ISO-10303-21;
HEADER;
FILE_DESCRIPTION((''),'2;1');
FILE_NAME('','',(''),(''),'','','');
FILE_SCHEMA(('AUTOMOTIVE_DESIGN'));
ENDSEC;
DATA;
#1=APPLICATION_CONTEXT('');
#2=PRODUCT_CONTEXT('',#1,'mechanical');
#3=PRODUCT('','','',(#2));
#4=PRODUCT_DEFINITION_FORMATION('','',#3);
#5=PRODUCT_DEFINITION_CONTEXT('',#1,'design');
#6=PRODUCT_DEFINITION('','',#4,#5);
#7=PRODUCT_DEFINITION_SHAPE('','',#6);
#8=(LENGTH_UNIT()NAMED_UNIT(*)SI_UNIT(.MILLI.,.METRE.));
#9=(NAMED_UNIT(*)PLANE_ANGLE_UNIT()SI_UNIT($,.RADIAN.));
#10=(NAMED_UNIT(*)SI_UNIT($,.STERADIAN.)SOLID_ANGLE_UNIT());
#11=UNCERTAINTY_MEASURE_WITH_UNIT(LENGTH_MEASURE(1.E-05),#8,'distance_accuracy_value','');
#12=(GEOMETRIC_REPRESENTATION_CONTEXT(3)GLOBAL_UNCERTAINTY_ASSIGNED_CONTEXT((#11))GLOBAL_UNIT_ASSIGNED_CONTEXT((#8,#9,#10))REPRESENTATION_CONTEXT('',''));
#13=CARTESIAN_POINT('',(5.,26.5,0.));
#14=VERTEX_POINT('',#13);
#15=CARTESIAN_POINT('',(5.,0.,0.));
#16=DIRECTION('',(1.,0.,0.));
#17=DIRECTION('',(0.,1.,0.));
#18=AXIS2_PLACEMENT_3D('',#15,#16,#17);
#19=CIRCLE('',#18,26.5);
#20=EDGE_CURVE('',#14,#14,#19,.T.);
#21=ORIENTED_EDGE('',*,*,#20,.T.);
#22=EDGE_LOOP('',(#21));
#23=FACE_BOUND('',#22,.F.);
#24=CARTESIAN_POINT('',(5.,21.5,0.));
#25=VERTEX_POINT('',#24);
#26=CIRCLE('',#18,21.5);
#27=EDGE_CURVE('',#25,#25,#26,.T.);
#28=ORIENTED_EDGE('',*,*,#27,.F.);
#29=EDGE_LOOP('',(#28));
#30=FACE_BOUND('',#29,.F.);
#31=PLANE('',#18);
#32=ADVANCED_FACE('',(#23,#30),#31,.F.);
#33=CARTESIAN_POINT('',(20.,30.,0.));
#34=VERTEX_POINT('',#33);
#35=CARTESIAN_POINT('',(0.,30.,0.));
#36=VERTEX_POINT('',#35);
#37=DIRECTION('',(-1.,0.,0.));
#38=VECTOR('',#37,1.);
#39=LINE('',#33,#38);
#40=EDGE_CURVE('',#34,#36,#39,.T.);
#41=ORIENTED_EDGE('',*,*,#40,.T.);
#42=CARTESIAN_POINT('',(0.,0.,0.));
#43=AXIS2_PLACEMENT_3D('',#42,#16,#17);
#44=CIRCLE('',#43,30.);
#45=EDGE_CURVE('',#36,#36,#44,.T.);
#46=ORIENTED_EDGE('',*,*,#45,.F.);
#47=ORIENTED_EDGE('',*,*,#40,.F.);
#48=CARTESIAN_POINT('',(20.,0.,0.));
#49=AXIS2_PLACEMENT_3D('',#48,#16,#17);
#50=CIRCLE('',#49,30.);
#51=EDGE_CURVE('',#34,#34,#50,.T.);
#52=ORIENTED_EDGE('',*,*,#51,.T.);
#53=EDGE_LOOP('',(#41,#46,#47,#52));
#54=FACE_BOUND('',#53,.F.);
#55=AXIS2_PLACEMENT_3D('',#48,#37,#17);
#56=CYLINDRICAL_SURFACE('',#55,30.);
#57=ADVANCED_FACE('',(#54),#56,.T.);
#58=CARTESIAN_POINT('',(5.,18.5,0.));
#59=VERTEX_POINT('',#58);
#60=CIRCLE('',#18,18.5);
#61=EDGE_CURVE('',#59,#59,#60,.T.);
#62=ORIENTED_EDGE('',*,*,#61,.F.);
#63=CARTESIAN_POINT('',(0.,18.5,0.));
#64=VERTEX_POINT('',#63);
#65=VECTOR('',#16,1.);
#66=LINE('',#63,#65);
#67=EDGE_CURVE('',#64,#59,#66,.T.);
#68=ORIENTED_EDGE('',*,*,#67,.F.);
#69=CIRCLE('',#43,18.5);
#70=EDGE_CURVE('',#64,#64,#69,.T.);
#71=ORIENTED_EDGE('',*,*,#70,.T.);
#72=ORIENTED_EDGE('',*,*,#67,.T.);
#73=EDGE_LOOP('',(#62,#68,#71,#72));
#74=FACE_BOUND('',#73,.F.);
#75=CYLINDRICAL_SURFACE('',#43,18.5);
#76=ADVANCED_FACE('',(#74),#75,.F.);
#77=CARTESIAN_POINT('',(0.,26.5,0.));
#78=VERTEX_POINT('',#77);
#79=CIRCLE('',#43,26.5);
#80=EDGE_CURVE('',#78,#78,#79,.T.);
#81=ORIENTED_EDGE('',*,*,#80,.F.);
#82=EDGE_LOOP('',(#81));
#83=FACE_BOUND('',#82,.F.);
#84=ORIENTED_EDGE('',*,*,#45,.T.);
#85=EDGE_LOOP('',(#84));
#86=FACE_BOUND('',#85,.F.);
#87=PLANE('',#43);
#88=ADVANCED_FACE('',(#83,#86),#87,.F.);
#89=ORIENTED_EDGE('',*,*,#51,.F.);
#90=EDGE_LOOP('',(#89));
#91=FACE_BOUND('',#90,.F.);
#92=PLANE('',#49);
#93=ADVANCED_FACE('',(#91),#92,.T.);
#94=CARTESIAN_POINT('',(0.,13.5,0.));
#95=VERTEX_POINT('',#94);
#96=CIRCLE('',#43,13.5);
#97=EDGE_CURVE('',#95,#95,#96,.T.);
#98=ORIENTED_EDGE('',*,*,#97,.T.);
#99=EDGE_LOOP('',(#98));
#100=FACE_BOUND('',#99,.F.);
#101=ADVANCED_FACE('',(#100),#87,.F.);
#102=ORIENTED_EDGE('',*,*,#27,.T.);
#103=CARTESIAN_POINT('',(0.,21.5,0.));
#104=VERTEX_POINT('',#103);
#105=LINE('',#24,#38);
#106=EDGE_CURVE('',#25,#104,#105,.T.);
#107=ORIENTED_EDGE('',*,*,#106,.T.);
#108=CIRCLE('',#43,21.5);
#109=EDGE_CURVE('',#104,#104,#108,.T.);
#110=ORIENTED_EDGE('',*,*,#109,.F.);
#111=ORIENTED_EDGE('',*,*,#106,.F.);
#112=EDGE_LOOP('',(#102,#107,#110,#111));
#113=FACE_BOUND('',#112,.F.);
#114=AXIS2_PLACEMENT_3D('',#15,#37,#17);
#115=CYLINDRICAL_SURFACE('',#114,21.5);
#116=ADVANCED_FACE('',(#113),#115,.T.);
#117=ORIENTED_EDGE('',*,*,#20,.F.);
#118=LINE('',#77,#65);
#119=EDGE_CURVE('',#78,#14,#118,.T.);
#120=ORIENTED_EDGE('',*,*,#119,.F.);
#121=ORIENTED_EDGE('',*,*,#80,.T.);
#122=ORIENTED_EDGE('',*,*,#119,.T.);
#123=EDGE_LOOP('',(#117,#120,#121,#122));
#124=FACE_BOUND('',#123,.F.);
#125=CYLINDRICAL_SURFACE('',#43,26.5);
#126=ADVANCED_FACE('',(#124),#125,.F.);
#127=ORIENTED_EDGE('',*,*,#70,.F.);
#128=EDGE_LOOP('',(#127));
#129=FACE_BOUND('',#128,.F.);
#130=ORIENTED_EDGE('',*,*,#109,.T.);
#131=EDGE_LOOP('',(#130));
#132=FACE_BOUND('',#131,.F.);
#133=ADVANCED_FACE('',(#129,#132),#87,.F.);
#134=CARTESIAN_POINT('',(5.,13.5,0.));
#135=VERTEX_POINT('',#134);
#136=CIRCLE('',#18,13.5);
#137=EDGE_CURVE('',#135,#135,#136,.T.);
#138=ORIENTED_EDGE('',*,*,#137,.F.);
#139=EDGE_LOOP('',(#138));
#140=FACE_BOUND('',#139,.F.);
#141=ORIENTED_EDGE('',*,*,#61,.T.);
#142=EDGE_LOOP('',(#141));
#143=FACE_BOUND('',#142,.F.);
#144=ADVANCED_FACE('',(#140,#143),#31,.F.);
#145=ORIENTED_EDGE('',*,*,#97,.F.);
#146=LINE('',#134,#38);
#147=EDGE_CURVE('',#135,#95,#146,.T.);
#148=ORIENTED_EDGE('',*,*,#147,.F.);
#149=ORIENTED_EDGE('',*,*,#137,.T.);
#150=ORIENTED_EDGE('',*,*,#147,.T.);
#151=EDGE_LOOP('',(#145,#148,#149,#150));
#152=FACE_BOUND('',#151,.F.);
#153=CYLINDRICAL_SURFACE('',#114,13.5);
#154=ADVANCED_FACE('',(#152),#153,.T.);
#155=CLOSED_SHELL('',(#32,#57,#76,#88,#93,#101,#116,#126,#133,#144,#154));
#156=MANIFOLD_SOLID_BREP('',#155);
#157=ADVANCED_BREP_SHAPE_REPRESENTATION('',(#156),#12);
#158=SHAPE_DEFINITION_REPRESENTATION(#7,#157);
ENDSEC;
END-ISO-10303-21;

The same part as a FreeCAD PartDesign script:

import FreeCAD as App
import Part
import Sketcher
from FreeCAD import Vector

doc = App.newDocument("Part")
params = doc.addObject("Spreadsheet::Sheet", "Params")
for row, (alias, value) in enumerate([
    ("sketch1_width", "20 mm"),
    ("sketch1_height", "30 mm"),
    ("revolution_angle", "360 deg"),
    ("sketch2_width", "5 mm"),
    ("groove_angle", "360 deg"),
], start=1):
    params.set(f"A{row}", alias)
    params.set(f"B{row}", "=" + value)
    params.setAlias(f"B{row}", alias)

body = doc.addObject("PartDesign::Body", "Body")

# Sketch on XY plane
sketch1 = doc.addObject("Sketcher::SketchObject", "Sketch")
body.addObject(sketch1)
sketch1.AttachmentSupport = (doc.XY_Plane, [""])
sketch1.MapMode = "FlatFace"
sketch1.addGeometry([
    Part.LineSegment(Vector(0, 30, 0), Vector(0, 0, 0)),
    Part.LineSegment(Vector(0, 0, 0), Vector(20, 0, 0)),
    Part.LineSegment(Vector(20, 0, 0), Vector(20, 30, 0)),
    Part.LineSegment(Vector(20, 30, 0), Vector(0, 30, 0)),
], False)
sketch1.addConstraint([
    Sketcher.Constraint("Coincident", 0, 2, 1, 1),
    Sketcher.Constraint("Coincident", 1, 2, 2, 1),
    Sketcher.Constraint("Coincident", 2, 2, 3, 1),
    Sketcher.Constraint("Coincident", 3, 2, 0, 1),
    Sketcher.Constraint("Vertical", 0),
    Sketcher.Constraint("Horizontal", 1),
    Sketcher.Constraint("Vertical", 2),
    Sketcher.Constraint("Horizontal", 3),
    Sketcher.Constraint("Coincident", 0, 2, -1, 1),
    Sketcher.Constraint("DistanceX", 1, 1, 1, 2, 20.0),
    Sketcher.Constraint("DistanceY", 0, 2, 0, 1, 30.0),
])
sketch1.setExpression("Constraints[9]", "Params.sketch1_width")
sketch1.setExpression("Constraints[10]", "Params.sketch1_height")
revolution = doc.addObject("PartDesign::Revolution", "Revolution")
body.addObject(revolution)
revolution.Profile = sketch1
revolution.ReferenceAxis = (sketch1, ["H_Axis"])
revolution.setExpression("Angle", "Params.revolution_angle")

# Sketch on XY plane
sketch2 = doc.addObject("Sketcher::SketchObject", "Sketch001")
body.addObject(sketch2)
sketch2.AttachmentSupport = (doc.XY_Plane, [""])
sketch2.MapMode = "FlatFace"
sketch2.addGeometry([
    Part.LineSegment(Vector(5, 26, 0), Vector(0, 26, 0)),  # 0
    Part.LineSegment(Vector(0, 26, 0), Vector(0, 22, 0)),  # 1
    Part.LineSegment(Vector(0, 22, 0), Vector(5, 22, 0)),  # 2
    Part.LineSegment(Vector(5, 22, 0), Vector(5, 26, 0)),  # 3
    Part.LineSegment(Vector(5, 18, 0), Vector(0, 18, 0)),  # 4
    Part.LineSegment(Vector(0, 18, 0), Vector(0, 14, 0)),  # 5
    Part.LineSegment(Vector(0, 14, 0), Vector(5, 14, 0)),  # 6
    Part.LineSegment(Vector(5, 14, 0), Vector(5, 18, 0)),  # 7
], False)
sketch2.addConstraint([
    Sketcher.Constraint("Coincident", 0, 2, 1, 1),
    Sketcher.Constraint("Coincident", 1, 2, 2, 1),
    Sketcher.Constraint("Coincident", 2, 2, 3, 1),
    Sketcher.Constraint("Coincident", 3, 2, 0, 1),
    Sketcher.Constraint("Coincident", 4, 2, 5, 1),
    Sketcher.Constraint("Coincident", 5, 2, 6, 1),
    Sketcher.Constraint("Coincident", 6, 2, 7, 1),
    Sketcher.Constraint("Coincident", 7, 2, 4, 1),
    Sketcher.Constraint("Horizontal", 0),
    Sketcher.Constraint("Vertical", 1),
    Sketcher.Constraint("Horizontal", 2),
    Sketcher.Constraint("Vertical", 3),
    Sketcher.Constraint("Horizontal", 4),
    Sketcher.Constraint("Vertical", 5),
    Sketcher.Constraint("Horizontal", 6),
    Sketcher.Constraint("Vertical", 7),
    Sketcher.Constraint("PointOnObject", 0, 2, -2),
    Sketcher.Constraint("PointOnObject", 4, 2, -2),
    Sketcher.Constraint("Vertical", 3, 2, 6, 2),
    Sketcher.Constraint("Equal", 6, 1),
    Sketcher.Constraint("Equal", 3, 5),
    Sketcher.Constraint("DistanceX", 0, 2, 0, 1, 5.0),
    Sketcher.Constraint("DistanceY", 4, 2, 1, 2, 3.0),
    Sketcher.Constraint("DistanceY", -1, 1, 5, 2, 13.5),
])
sketch2.setExpression("Constraints[21]", "Params.sketch2_width")
groove = doc.addObject("PartDesign::Groove", "Groove")
body.addObject(groove)
groove.Profile = sketch2
groove.ReferenceAxis = (sketch2, ["H_Axis"])
groove.setExpression("Angle", "Params.groove_angle")

doc.recompute()
